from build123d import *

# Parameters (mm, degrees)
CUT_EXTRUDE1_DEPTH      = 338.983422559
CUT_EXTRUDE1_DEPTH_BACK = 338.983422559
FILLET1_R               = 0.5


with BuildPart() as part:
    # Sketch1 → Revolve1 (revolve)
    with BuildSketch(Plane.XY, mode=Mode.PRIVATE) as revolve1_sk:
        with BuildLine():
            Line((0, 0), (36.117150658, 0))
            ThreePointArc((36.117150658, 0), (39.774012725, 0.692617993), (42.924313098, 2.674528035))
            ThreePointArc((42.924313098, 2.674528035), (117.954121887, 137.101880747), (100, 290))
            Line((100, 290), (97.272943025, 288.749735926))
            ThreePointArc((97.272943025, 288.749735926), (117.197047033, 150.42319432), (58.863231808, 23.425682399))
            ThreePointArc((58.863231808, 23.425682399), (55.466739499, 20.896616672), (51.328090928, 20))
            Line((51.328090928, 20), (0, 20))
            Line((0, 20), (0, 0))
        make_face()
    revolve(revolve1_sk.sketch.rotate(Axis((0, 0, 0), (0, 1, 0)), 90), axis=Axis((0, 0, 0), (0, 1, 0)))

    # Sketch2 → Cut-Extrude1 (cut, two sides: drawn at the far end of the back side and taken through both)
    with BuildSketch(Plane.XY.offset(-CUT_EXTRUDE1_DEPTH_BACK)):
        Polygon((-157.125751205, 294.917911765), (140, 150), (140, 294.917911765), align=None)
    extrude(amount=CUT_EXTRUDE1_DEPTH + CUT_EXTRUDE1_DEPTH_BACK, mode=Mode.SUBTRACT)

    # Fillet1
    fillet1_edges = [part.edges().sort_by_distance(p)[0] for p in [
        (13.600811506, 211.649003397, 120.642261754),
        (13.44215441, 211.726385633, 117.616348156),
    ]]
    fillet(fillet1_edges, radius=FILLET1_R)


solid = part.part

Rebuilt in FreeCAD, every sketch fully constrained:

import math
import FreeCAD as App
import Part
import Sketcher
from FreeCAD import Vector
Q = App.Units.Quantity


def edges_at(feature, points):
    """Names of the edges that pass closest to the given points."""
    edges = feature.Shape.Edges
    near = lambda p: min(range(len(edges)), key=lambda i: edges[i].distToShape(Part.Vertex(*p))[0])
    return sorted({f"Edge{near(p) + 1}" for p in points})

doc = App.newDocument("Part")
body = doc.addObject("PartDesign::Body", "Body")

# Sketch on XY plane
sketch1 = body.newObject("Sketcher::SketchObject", "Sketch")
sketch1.AttachmentSupport = (doc.getObject("XY_Plane"), [""])
sketch1.MapMode = "FlatFace"
sketch1.addGeometry(Part.LineSegment(Vector(0, 0, 0), Vector(36.1, 0, 0)), False)
sketch1.addGeometry(Part.ArcOfCircle(Part.Circle(Vector(36.1, 10, 0), Vector(0, 0, 1), 10), math.radians(-90), math.radians(-47)), False)
sketch1.addGeometry(Part.ArcOfCircle(Part.Circle(Vector(-127.3, 185.8, 0), Vector(0, 0, 1), 250), math.radians(-47), math.radians(25)), False)
sketch1.addGeometry(Part.LineSegment(Vector(100, 290, 0), Vector(97.3, 288.7, 0)), False)
sketch1.addGeometry(Part.ArcOfCircle(Part.Circle(Vector(-127.3, 185.8, 0), Vector(0, 0, 1), 247), math.radians(-41), math.radians(25)), False)
sketch1.addGeometry(Part.ArcOfCircle(Part.Circle(Vector(51.3, 30, 0), Vector(0, 0, 1), 10), math.radians(-90), math.radians(-41)), False)
sketch1.addGeometry(Part.LineSegment(Vector(51.3, 20, 0), Vector(0, 20, 0)), False)
sketch1.addGeometry(Part.LineSegment(Vector(0, 20, 0), Vector(0, 0, 0)), False)
sketch1.addConstraint(Sketcher.Constraint("Tangent", 0, 2, 1, 1))
sketch1.addConstraint(Sketcher.Constraint("Tangent", 1, 2, 2, 1))
sketch1.addConstraint(Sketcher.Constraint("Coincident", 2, 2, 3, 1))
sketch1.addConstraint(Sketcher.Constraint("Coincident", 3, 2, 4, 2))
sketch1.addConstraint(Sketcher.Constraint("Tangent", 4, 1, 5, 2))
sketch1.addConstraint(Sketcher.Constraint("Tangent", 5, 1, 6, 1))
sketch1.addConstraint(Sketcher.Constraint("Coincident", 6, 2, 7, 1))
sketch1.addConstraint(Sketcher.Constraint("Coincident", 7, 2, 0, 1))
sketch1.addConstraint(Sketcher.Constraint("Horizontal", 0))
sketch1.addConstraint(Sketcher.Constraint("Horizontal", 6))
sketch1.addConstraint(Sketcher.Constraint("Vertical", 7))
sketch1.addConstraint(Sketcher.Constraint("Coincident", 7, 2, -1, 1))
sketch1.addConstraint(Sketcher.Constraint("Coincident", 4, 3, 2, 3))
sketch1.addConstraint(Sketcher.Constraint("Equal", 1, 5))
sketch1.addConstraint(Sketcher.Constraint("Radius", 1, 10.0))
sketch1.addConstraint(Sketcher.Constraint("Radius", 2, 250.0))
sketch1.addConstraint(Sketcher.Constraint("Radius", 4, 247.0))
sketch1.addConstraint(Sketcher.Constraint("DistanceY", 7, 2, 7, 1, 20.0))
sketch1.addConstraint(Sketcher.Constraint("DistanceX", -1, 1, 2, 2, 100.0))
sketch1.addConstraint(Sketcher.Constraint("DistanceY", -1, 1, 2, 2, 290.0))
sketch1.addConstraint(Sketcher.Constraint("DistanceX", 0, 1, 0, 2, 36.117151))
sketch1.addConstraint(Sketcher.Constraint("DistanceX", 2, 3, 3, 2, 224.527691))
revolution = body.newObject("PartDesign::Revolution", "Revolution")
revolution.Profile = sketch1
revolution.ReferenceAxis = (sketch1, ["V_Axis"])
revolution.Angle = 360

# Sketch on XY plane
sketch2 = body.newObject("Sketcher::SketchObject", "Sketch001")
sketch2.AttachmentSupport = (doc.getObject("XY_Plane"), [""])
sketch2.MapMode = "FlatFace"
sketch2.addGeometry(Part.LineSegment(Vector(-157, 295, 0), Vector(140, 150, 0)), False)
sketch2.addGeometry(Part.LineSegment(Vector(140, 150, 0), Vector(140, 295, 0)), False)
sketch2.addGeometry(Part.LineSegment(Vector(140, 295, 0), Vector(-157, 295, 0)), False)
sketch2.addConstraint(Sketcher.Constraint("Coincident", 0, 2, 1, 1))
sketch2.addConstraint(Sketcher.Constraint("Coincident", 1, 2, 2, 1))
sketch2.addConstraint(Sketcher.Constraint("Coincident", 2, 2, 0, 1))
sketch2.addConstraint(Sketcher.Constraint("Vertical", 1))
sketch2.addConstraint(Sketcher.Constraint("Horizontal", 2))
sketch2.addConstraint(Sketcher.Constraint("Angle", 0, Q("-26 deg")))
sketch2.addConstraint(Sketcher.Constraint("DistanceX", -1, 1, 0, 2, 140.0))
sketch2.addConstraint(Sketcher.Constraint("DistanceY", -1, 1, 0, 2, 150.0))
sketch2.addConstraint(Sketcher.Constraint("DistanceX", 2, 2, 2, 1, 297.125751))
pocket1 = body.newObject("PartDesign::Pocket", "Pocket")
pocket1.Profile = sketch2
pocket1.Type = "ThroughAll"
pocket1.Midplane = True
doc.recompute()

fillet = body.newObject("PartDesign::Fillet", "Fillet")
fillet.Base = (pocket1, edges_at(pocket1, [(13.601, 211.649, 120.642), (13.442, 211.726, 117.616)]))
fillet.Radius = 0.5

doc.recompute()
